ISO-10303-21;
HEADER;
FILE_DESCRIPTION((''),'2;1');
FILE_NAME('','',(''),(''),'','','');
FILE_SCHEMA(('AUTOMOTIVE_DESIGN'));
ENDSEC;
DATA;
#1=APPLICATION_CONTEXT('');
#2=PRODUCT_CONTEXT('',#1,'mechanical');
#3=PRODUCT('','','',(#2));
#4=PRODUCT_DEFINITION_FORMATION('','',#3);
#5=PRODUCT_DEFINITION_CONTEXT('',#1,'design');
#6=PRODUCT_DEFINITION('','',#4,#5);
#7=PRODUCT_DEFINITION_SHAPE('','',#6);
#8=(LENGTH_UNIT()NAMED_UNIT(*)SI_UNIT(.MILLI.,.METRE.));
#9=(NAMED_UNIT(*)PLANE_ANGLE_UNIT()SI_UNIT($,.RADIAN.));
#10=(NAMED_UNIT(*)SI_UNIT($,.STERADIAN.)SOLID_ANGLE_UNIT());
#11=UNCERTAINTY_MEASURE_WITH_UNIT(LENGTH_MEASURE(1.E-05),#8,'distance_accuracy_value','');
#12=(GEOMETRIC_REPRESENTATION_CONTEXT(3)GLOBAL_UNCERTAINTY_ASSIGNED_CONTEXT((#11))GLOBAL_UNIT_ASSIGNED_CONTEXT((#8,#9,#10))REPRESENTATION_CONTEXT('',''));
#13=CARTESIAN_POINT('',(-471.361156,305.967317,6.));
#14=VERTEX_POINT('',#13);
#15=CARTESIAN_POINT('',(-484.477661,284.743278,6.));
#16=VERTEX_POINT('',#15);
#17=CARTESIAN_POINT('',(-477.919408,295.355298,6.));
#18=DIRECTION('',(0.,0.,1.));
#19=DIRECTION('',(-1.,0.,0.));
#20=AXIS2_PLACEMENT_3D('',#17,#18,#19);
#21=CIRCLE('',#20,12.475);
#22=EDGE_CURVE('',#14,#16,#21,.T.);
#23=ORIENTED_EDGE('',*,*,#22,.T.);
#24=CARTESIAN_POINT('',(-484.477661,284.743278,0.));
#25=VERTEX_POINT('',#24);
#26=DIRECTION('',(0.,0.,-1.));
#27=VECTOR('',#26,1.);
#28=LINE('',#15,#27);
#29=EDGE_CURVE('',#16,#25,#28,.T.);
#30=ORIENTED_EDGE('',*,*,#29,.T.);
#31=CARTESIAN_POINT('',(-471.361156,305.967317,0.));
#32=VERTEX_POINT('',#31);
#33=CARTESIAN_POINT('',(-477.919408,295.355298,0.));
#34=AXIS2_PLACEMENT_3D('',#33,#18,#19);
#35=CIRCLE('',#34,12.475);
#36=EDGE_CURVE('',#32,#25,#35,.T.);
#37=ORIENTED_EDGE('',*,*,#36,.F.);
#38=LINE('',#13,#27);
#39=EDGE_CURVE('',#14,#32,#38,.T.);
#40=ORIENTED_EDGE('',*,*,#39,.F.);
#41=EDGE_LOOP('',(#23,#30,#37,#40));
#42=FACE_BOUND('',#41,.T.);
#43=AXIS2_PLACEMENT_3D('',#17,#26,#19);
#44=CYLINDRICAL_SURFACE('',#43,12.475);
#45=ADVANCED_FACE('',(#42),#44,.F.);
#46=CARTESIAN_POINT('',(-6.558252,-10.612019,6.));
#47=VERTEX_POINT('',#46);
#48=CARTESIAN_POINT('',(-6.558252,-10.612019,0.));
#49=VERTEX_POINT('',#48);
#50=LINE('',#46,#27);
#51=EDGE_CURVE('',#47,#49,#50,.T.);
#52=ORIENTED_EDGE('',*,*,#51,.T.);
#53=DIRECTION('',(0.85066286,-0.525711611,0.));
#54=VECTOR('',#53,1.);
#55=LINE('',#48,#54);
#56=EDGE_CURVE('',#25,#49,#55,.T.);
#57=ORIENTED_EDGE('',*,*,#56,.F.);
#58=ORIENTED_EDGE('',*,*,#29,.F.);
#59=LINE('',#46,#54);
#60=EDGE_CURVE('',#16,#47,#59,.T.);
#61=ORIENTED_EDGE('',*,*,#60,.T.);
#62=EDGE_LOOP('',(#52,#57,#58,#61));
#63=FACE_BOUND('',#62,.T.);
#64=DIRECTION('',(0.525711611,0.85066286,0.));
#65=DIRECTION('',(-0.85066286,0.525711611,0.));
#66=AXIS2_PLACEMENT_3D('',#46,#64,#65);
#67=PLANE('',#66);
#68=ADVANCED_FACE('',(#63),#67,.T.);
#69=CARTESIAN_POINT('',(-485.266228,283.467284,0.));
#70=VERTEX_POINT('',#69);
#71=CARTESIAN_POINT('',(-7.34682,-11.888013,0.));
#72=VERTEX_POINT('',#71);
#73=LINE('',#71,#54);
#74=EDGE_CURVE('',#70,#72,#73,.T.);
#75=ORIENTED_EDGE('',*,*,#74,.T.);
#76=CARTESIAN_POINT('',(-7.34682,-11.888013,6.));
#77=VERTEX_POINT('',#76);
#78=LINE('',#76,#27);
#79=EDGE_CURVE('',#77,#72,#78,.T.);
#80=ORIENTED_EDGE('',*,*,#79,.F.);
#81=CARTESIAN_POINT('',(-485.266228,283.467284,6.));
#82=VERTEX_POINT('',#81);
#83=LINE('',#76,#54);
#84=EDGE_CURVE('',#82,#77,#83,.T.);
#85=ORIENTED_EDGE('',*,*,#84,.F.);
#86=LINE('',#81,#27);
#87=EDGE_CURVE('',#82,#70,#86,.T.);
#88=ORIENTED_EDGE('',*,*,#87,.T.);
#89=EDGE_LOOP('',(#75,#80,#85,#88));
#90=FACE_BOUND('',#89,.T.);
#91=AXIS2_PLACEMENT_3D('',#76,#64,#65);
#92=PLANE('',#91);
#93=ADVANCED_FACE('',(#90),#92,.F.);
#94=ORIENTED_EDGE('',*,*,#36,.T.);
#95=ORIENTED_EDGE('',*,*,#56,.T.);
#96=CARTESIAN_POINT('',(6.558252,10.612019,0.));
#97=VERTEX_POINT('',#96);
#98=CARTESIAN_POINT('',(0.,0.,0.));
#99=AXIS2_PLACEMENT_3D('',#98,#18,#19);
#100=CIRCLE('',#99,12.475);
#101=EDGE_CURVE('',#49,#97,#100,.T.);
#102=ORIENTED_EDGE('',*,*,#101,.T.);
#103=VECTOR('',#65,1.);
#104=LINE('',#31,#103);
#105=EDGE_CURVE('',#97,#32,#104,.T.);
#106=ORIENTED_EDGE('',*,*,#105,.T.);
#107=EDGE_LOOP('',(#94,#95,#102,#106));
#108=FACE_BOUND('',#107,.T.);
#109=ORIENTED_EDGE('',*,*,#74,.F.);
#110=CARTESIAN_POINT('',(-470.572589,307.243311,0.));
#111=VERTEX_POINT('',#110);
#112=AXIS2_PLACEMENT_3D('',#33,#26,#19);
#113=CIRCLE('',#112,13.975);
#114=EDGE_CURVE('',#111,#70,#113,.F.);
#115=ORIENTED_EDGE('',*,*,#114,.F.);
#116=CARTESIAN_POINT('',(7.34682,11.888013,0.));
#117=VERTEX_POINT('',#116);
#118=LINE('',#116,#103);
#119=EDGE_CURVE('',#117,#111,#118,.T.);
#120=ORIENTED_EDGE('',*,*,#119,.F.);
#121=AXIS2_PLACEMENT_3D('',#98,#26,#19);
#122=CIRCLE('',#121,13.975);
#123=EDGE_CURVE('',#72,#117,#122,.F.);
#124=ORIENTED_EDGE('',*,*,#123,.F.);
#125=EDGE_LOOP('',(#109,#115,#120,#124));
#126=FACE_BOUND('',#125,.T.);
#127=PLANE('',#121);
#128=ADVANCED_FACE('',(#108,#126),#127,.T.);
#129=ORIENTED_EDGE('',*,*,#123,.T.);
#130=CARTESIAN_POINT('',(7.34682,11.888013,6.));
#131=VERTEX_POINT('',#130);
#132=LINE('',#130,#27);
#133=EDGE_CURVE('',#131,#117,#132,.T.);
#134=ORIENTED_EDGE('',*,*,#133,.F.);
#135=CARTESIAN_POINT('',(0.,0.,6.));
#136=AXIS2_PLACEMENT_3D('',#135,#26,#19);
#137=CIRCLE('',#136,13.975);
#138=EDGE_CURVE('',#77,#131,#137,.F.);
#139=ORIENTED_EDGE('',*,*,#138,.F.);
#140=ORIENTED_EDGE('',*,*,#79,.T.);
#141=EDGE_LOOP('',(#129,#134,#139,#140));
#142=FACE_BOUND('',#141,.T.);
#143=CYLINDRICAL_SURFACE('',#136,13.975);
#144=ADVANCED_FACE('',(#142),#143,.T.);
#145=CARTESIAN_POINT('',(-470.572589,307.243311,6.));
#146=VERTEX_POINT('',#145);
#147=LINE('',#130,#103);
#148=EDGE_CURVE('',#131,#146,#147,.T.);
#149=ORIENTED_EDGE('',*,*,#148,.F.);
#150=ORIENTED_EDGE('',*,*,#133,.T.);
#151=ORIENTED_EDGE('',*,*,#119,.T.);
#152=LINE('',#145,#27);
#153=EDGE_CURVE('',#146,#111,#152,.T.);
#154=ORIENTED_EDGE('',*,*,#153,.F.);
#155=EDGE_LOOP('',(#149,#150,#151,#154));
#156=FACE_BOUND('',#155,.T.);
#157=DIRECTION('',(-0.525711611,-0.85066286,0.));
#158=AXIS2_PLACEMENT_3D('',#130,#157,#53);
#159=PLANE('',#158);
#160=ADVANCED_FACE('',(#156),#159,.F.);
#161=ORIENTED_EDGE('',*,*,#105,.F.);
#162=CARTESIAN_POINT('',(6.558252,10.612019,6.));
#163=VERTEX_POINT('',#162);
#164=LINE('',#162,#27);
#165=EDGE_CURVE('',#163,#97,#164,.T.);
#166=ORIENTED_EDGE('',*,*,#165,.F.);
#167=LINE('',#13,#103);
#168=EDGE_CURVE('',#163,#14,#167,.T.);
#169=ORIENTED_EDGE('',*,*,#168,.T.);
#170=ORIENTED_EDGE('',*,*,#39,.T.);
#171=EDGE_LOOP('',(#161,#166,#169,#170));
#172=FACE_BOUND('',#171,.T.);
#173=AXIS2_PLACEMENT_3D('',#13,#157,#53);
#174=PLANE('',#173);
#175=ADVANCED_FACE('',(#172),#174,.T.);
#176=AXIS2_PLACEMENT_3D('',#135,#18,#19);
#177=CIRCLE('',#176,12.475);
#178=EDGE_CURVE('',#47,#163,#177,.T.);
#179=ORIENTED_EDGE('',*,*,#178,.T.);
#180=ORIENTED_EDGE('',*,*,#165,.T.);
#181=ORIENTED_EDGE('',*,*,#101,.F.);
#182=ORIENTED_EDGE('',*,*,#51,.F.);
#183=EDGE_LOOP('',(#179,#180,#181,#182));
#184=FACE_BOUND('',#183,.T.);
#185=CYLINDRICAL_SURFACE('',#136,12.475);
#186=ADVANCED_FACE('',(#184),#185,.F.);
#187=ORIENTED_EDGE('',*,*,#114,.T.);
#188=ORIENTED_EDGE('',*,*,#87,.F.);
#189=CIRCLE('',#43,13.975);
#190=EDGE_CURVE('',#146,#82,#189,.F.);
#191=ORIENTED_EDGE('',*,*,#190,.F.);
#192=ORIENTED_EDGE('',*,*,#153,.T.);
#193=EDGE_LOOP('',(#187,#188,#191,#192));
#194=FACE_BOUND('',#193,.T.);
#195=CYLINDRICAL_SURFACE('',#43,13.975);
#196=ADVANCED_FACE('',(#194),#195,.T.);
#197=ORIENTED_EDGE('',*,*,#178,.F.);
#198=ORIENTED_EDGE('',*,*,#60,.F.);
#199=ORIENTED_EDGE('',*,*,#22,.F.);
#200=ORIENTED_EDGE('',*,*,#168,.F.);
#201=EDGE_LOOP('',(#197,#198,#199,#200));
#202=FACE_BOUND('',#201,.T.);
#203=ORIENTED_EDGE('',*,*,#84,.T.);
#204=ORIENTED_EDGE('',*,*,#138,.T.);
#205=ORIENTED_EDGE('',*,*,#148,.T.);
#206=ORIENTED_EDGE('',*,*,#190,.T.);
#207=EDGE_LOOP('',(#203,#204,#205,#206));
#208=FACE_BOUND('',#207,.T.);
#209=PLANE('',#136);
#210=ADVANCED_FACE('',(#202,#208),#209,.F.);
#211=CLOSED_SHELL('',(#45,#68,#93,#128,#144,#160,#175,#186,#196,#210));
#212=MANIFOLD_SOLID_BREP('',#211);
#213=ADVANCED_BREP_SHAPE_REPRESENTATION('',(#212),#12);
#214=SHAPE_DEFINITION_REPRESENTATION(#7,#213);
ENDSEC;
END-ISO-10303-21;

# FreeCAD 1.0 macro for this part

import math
import FreeCAD as App
import Part
import Sketcher
Q = App.Units.Quantity

doc = App.newDocument("Part")
body = doc.addObject("PartDesign::Body", "Body")

# Sketch on XY plane
sketch1 = body.newObject("Sketcher::SketchObject", "Sketch")
sketch1.AttachmentSupport = (doc.getObject("XY_Plane"), [""])
sketch1.MapMode = "FlatFace"
sketch1.addGeometry(Part.LineSegment(App.Vector(7, 12, 0), App.Vector(-471, 307, 0)), False)
sketch1.addGeometry(Part.ArcOfCircle(Part.Circle(App.Vector(-478, 295, 0), App.Vector(0, 0, 1), 14), math.radians(58), math.radians(238)), False)
sketch1.addGeometry(Part.LineSegment(App.Vector(-485, 283, 0), App.Vector(-7, -12, 0)), False)
sketch1.addGeometry(Part.ArcOfCircle(Part.Circle(App.Vector(0, 0, 0), App.Vector(0, 0, 1), 14), math.radians(-122), math.radians(58)), False)
sketch1.addGeometry(Part.LineSegment(App.Vector(-471, 306, 0), App.Vector(7, 11, 0)), False)
sketch1.addGeometry(Part.ArcOfCircle(Part.Circle(App.Vector(0, 0, 0), App.Vector(0, 0, 1), 12), math.radians(-122), math.radians(58)), False)
sketch1.addGeometry(Part.LineSegment(App.Vector(-7, -11, 0), App.Vector(-484, 285, 0)), False)
sketch1.addGeometry(Part.ArcOfCircle(Part.Circle(App.Vector(-478, 295, 0), App.Vector(0, 0, 1), 12), math.radians(58), math.radians(238)), False)
sketch1.addConstraint(Sketcher.Constraint("Tangent", 0, 2, 1, 1))
sketch1.addConstraint(Sketcher.Constraint("Tangent", 1, 2, 2, 1))
sketch1.addConstraint(Sketcher.Constraint("Tangent", 2, 2, 3, 1))
sketch1.addConstraint(Sketcher.Constraint("Tangent", 3, 2, 0, 1))
sketch1.addConstraint(Sketcher.Constraint("Tangent", 4, 2, 5, 2))
sketch1.addConstraint(Sketcher.Constraint("Tangent", 5, 1, 6, 1))
sketch1.addConstraint(Sketcher.Constraint("Tangent", 6, 2, 7, 2))
sketch1.addConstraint(Sketcher.Constraint("Tangent", 7, 1, 4, 1))
sketch1.addConstraint(Sketcher.Constraint("Coincident", 3, 3, -1, 1))
sketch1.addConstraint(Sketcher.Constraint("Coincident", 5, 3, -1, 1))
sketch1.addConstraint(Sketcher.Constraint("Coincident", 7, 3, 1, 3))
sketch1.addConstraint(Sketcher.Constraint("Equal", 1, 3))
sketch1.addConstraint(Sketcher.Constraint("Equal", 5, 7))
sketch1.addConstraint(Sketcher.Constraint("Radius", 1, Q("13.975 mm")))
sketch1.addConstraint(Sketcher.Constraint("Radius", 5, Q("12.475 mm")))
sketch1.addConstraint(Sketcher.Constraint("Distance", 0, Q("561.82 mm")))
sketch1.addConstraint(Sketcher.Constraint("DistanceX", 1, 3, -1, 1, Q("477.919408 mm")))
pad1 = body.newObject("PartDesign::Pad", "Pad")
pad1.Profile = sketch1
pad1.Length = 6

doc.recompute()
